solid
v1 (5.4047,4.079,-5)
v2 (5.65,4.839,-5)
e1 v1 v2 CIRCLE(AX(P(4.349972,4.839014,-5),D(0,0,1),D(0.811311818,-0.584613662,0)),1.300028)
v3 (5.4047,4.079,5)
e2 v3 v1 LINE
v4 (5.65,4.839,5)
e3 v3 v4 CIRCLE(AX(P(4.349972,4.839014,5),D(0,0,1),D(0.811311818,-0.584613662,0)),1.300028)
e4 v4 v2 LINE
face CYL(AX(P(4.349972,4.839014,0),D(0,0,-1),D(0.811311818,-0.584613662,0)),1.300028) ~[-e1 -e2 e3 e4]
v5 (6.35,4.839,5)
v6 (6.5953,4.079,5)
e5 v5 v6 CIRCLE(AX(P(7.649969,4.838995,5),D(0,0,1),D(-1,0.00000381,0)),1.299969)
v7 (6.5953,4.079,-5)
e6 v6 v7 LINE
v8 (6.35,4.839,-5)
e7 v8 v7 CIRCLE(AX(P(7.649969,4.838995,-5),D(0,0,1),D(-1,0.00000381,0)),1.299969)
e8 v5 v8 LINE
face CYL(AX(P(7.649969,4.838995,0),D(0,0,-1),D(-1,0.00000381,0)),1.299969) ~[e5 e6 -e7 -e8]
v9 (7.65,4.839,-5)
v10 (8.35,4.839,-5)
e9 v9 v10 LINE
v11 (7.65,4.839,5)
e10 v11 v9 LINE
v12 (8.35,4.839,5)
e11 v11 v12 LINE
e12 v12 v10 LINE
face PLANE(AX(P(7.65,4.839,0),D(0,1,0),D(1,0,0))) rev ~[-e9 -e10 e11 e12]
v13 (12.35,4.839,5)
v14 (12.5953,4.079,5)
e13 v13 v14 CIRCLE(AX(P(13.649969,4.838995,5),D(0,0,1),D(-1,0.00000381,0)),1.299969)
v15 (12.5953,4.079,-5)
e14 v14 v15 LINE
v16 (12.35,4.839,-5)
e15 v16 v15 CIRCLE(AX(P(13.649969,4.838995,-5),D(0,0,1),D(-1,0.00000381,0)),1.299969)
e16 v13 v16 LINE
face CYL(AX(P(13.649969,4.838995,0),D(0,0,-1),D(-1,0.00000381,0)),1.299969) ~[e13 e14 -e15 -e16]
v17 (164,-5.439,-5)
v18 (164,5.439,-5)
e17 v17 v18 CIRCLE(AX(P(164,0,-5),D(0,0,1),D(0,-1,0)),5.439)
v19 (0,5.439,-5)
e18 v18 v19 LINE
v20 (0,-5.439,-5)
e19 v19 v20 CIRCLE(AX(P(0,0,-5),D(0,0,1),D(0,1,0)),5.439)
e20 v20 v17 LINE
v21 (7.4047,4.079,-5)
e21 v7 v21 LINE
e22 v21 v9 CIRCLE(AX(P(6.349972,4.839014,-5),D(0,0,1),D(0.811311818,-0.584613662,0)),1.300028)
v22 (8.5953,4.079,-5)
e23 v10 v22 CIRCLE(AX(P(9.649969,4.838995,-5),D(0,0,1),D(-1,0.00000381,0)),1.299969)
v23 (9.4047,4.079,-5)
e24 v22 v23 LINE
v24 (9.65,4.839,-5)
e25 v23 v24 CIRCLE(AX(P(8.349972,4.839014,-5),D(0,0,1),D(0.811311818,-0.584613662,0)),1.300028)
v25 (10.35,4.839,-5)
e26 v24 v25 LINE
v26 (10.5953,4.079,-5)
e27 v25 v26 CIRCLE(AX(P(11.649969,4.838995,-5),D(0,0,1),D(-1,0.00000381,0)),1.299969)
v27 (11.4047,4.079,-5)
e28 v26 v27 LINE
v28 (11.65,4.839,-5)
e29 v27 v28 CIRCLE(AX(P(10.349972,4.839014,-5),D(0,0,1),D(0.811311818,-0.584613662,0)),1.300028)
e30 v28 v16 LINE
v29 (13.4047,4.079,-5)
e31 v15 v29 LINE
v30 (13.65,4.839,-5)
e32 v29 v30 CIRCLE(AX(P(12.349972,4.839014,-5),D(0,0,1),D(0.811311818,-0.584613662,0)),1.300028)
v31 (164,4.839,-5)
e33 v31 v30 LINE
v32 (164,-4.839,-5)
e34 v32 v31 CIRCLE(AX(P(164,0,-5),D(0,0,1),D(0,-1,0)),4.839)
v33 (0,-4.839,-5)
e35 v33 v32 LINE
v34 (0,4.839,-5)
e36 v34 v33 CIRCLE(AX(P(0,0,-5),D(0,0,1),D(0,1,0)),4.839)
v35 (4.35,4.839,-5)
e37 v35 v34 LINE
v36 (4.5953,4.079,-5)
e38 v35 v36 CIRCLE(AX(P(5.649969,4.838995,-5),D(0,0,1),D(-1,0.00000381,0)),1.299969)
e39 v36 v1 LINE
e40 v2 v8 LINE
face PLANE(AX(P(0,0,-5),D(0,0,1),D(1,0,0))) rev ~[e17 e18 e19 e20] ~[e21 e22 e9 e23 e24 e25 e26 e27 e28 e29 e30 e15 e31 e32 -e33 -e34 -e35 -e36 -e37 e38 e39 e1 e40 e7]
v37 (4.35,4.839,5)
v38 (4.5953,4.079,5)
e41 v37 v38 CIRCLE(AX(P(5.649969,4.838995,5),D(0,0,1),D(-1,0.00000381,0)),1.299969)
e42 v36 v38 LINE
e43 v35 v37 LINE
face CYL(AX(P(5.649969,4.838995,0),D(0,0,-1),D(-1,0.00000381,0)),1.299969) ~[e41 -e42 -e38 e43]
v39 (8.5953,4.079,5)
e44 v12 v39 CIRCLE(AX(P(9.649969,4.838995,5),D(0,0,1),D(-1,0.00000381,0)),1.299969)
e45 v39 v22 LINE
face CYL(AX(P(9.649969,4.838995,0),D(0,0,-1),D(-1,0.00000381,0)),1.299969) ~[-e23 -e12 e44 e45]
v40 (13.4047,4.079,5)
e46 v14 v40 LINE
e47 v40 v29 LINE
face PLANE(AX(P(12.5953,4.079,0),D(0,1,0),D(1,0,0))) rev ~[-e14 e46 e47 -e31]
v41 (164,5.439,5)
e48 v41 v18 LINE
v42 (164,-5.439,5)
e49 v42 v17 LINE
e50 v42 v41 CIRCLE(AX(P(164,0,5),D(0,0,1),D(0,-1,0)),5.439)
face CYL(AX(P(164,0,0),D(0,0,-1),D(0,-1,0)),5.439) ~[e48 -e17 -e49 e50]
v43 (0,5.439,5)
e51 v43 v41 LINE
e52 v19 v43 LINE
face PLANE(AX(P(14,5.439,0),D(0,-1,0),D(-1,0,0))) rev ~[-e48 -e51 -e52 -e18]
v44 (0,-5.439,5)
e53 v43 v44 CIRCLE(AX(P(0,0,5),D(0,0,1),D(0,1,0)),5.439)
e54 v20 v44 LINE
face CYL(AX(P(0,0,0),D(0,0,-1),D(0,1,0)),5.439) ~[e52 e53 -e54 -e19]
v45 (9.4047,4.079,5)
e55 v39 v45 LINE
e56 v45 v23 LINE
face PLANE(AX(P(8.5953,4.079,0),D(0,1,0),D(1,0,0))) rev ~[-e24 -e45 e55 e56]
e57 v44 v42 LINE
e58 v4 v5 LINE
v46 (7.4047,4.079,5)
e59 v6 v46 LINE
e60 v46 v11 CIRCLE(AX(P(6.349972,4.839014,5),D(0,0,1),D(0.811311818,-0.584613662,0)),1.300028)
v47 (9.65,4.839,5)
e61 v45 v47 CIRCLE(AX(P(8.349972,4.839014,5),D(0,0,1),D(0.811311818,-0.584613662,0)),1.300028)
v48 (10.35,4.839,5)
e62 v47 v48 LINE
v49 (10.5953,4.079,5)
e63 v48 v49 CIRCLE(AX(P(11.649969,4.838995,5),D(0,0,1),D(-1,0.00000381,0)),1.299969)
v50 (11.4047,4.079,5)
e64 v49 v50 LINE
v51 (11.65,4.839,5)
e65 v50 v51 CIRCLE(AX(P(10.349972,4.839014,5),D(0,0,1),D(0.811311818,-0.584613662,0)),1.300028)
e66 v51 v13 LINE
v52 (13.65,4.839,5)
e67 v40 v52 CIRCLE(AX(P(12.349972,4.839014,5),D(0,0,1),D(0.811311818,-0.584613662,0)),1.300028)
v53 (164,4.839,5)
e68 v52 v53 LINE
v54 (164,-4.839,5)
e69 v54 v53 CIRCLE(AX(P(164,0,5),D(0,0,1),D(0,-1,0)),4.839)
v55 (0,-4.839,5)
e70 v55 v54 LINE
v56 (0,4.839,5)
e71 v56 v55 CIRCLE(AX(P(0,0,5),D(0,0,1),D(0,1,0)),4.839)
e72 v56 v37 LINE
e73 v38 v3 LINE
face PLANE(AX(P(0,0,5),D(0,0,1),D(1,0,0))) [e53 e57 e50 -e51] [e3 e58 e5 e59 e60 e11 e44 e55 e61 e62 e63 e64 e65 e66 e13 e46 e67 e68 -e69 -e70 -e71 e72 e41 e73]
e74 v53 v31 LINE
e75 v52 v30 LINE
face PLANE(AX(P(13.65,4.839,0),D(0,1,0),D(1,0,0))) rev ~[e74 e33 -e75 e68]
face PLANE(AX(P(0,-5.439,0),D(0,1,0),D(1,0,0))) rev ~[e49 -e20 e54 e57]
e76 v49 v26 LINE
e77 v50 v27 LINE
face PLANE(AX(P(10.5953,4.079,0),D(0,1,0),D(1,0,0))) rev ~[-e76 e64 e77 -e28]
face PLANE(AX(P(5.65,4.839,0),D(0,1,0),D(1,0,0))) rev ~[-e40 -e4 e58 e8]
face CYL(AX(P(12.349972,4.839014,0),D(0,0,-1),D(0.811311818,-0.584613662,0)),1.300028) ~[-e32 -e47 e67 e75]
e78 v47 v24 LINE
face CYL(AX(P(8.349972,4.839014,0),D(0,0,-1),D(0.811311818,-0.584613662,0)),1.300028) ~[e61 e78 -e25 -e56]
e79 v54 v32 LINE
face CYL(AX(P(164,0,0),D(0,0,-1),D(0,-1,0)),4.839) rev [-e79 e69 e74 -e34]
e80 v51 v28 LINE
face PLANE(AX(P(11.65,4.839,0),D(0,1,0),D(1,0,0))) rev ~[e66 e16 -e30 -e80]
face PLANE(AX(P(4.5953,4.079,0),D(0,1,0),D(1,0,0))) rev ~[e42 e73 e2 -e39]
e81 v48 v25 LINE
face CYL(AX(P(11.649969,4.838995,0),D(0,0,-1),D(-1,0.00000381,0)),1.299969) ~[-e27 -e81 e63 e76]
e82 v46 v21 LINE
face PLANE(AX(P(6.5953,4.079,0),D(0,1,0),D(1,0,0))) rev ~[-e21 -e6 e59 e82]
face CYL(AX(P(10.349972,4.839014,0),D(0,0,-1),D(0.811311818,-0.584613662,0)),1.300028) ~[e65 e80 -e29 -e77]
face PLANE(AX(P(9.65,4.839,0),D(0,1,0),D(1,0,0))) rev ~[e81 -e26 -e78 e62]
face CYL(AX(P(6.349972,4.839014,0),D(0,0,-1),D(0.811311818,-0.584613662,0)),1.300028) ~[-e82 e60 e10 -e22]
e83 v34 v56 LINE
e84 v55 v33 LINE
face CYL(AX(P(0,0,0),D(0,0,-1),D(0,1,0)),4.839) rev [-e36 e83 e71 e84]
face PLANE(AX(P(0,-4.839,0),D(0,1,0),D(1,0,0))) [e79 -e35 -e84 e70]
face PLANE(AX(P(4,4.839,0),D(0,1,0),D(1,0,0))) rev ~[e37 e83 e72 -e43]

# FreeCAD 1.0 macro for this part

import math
import FreeCAD as App
import Part
import Sketcher
Q = App.Units.Quantity

doc = App.newDocument("Part")
body = doc.addObject("PartDesign::Body", "Body")

sketch1 = body.newObject("Sketcher::SketchObject", "Sketch")
sketch1.AttachmentSupport = (doc.getObject("XY_Plane"), [""])
sketch1.MapMode = "FlatFace"
sketch1.addGeometry([
    Part.LineSegment(App.Vector(4, 5.44, 0), App.Vector(4, 4.84, 0)),
    Part.LineSegment(App.Vector(4, 4.84, 0), App.Vector(4.35, 4.84, 0)),
    Part.ArcOfCircle(Part.Circle(App.Vector(5.65, 4.84, 0), App.Vector(0, 0, 1), 1.3), math.radians(180), math.radians(216)),
    Part.LineSegment(App.Vector(4.6, 4.08, 0), App.Vector(5.4, 4.08, 0)),
    Part.ArcOfCircle(Part.Circle(App.Vector(4.35, 4.84, 0), App.Vector(0, 0, 1), 1.3), math.radians(-36), math.radians(0)),
    Part.LineSegment(App.Vector(5.65, 4.84, 0), App.Vector(6.35, 4.84, 0)),
    Part.ArcOfCircle(Part.Circle(App.Vector(7.65, 4.84, 0), App.Vector(0, 0, 1), 1.3), math.radians(180), math.radians(216)),
    Part.LineSegment(App.Vector(6.6, 4.08, 0), App.Vector(7.4, 4.08, 0)),
    Part.ArcOfCircle(Part.Circle(App.Vector(6.35, 4.84, 0), App.Vector(0, 0, 1), 1.3), math.radians(-36), math.radians(0)),
    Part.LineSegment(App.Vector(7.65, 4.84, 0), App.Vector(8.35, 4.84, 0)),
    Part.ArcOfCircle(Part.Circle(App.Vector(9.65, 4.84, 0), App.Vector(0, 0, 1), 1.3), math.radians(180), math.radians(216)),
    Part.LineSegment(App.Vector(8.6, 4.08, 0), App.Vector(9.4, 4.08, 0)),
    Part.ArcOfCircle(Part.Circle(App.Vector(8.35, 4.84, 0), App.Vector(0, 0, 1), 1.3), math.radians(-36), math.radians(0)),
    Part.LineSegment(App.Vector(9.65, 4.84, 0), App.Vector(10.35, 4.84, 0)),
    Part.ArcOfCircle(Part.Circle(App.Vector(11.65, 4.84, 0), App.Vector(0, 0, 1), 1.3), math.radians(180), math.radians(216)),
    Part.LineSegment(App.Vector(10.6, 4.08, 0), App.Vector(11.4, 4.08, 0)),
    Part.ArcOfCircle(Part.Circle(App.Vector(10.35, 4.84, 0), App.Vector(0, 0, 1), 1.3), math.radians(-36), math.radians(0)),
    Part.LineSegment(App.Vector(11.65, 4.84, 0), App.Vector(12.35, 4.84, 0)),
    Part.ArcOfCircle(Part.Circle(App.Vector(13.65, 4.84, 0), App.Vector(0, 0, 1), 1.3), math.radians(180), math.radians(216)),
    Part.LineSegment(App.Vector(12.6, 4.08, 0), App.Vector(13.4, 4.08, 0)),
    Part.ArcOfCircle(Part.Circle(App.Vector(12.35, 4.84, 0), App.Vector(0, 0, 1), 1.3), math.radians(-36), math.radians(0)),
    Part.LineSegment(App.Vector(13.65, 4.84, 0), App.Vector(14, 4.84, 0)),
    Part.LineSegment(App.Vector(14, 4.84, 0), App.Vector(14, 5.44, 0)),
    Part.LineSegment(App.Vector(14, 5.44, 0), App.Vector(4, 5.44, 0)),
], False)
sketch1.addConstraint([
    Sketcher.Constraint("Coincident", 0, 2, 1, 1),
    Sketcher.Constraint("Coincident", 1, 2, 2, 1),
    Sketcher.Constraint("Coincident", 2, 2, 3, 1),
    Sketcher.Constraint("Coincident", 3, 2, 4, 1),
    Sketcher.Constraint("Coincident", 4, 2, 5, 1),
    Sketcher.Constraint("Coincident", 5, 2, 6, 1),
    Sketcher.Constraint("Coincident", 6, 2, 7, 1),
    Sketcher.Constraint("Coincident", 7, 2, 8, 1),
    Sketcher.Constraint("Coincident", 8, 2, 9, 1),
    Sketcher.Constraint("Coincident", 9, 2, 10, 1),
    Sketcher.Constraint("Coincident", 10, 2, 11, 1),
    Sketcher.Constraint("Coincident", 11, 2, 12, 1),
    Sketcher.Constraint("Coincident", 12, 2, 13, 1),
    Sketcher.Constraint("Coincident", 13, 2, 14, 1),
    Sketcher.Constraint("Coincident", 14, 2, 15, 1),
    Sketcher.Constraint("Coincident", 15, 2, 16, 1),
    Sketcher.Constraint("Coincident", 16, 2, 17, 1),
    Sketcher.Constraint("Coincident", 17, 2, 18, 1),
    Sketcher.Constraint("Coincident", 18, 2, 19, 1),
    Sketcher.Constraint("Coincident", 19, 2, 20, 1),
    Sketcher.Constraint("Coincident", 20, 2, 21, 1),
    Sketcher.Constraint("Coincident", 21, 2, 22, 1),
    Sketcher.Constraint("Coincident", 22, 2, 23, 1),
    Sketcher.Constraint("Coincident", 23, 2, 0, 1),
    Sketcher.Constraint("Vertical", 0),
    Sketcher.Constraint("Horizontal", 1),
    Sketcher.Constraint("Horizontal", 3),
    Sketcher.Constraint("Horizontal", 5),
    Sketcher.Constraint("Horizontal", 7),
    Sketcher.Constraint("Horizontal", 9),
    Sketcher.Constraint("Horizontal", 11),
    Sketcher.Constraint("Horizontal", 13),
    Sketcher.Constraint("Horizontal", 15),
    Sketcher.Constraint("Horizontal", 17),
    Sketcher.Constraint("Horizontal", 19),
    Sketcher.Constraint("Horizontal", 21),
    Sketcher.Constraint("Vertical", 22),
    Sketcher.Constraint("Horizontal", 23),
    Sketcher.Constraint("Coincident", 1, 2, 4, 3),
    Sketcher.Constraint("Coincident", 4, 2, 2, 3),
    Sketcher.Constraint("Coincident", 5, 2, 8, 3),
    Sketcher.Constraint("Coincident", 8, 2, 6, 3),
    Sketcher.Constraint("Coincident", 9, 2, 12, 3),
    Sketcher.Constraint("Coincident", 12, 2, 10, 3),
    Sketcher.Constraint("Coincident", 13, 2, 16, 3),
    Sketcher.Constraint("Coincident", 16, 2, 14, 3),
    Sketcher.Constraint("Coincident", 17, 2, 20, 3),
    Sketcher.Constraint("Coincident", 20, 2, 18, 3),
    Sketcher.Constraint("Equal", 4, 6),
    Sketcher.Constraint("Equal", 8, 10),
    Sketcher.Constraint("Equal", 12, 14),
    Sketcher.Constraint("Equal", 16, 18),
    Sketcher.Constraint("Horizontal", 2, 3, 4, 3),
    Sketcher.Constraint("Horizontal", 4, 3, 6, 3),
    Sketcher.Constraint("Horizontal", 8, 3, 10, 3),
    Sketcher.Constraint("Horizontal", 12, 3, 14, 3),
    Sketcher.Constraint("Horizontal", 16, 3, 18, 3),
    Sketcher.Constraint("Horizontal", 3, 2, 6, 2),
    Sketcher.Constraint("Horizontal", 7, 2, 10, 2),
    Sketcher.Constraint("Horizontal", 11, 2, 14, 2),
    Sketcher.Constraint("Horizontal", 15, 2, 18, 2),
    Sketcher.Constraint("Equal", 5, 9),
    Sketcher.Constraint("Equal", 9, 13),
    Sketcher.Constraint("Equal", 13, 17),
    Sketcher.Constraint("Equal", 1, 21),
    Sketcher.Constraint("Radius", 2, Q("1.3 mm")),
    Sketcher.Constraint("DistanceX", 23, 2, 23, 1, Q("10 mm")),
    Sketcher.Constraint("DistanceX", 5, 1, 5, 2, Q("0.7 mm")),
    Sketcher.Constraint("DistanceY", 0, 2, 0, 1, Q("0.6 mm")),
    Sketcher.Constraint("DistanceX", -1, 1, 0, 2, Q("4 mm")),
    Sketcher.Constraint("DistanceY", 2, 2, 4, 3, Q("0.76 mm")),
    Sketcher.Constraint("DistanceY", -1, 1, 2, 3, Q("4.839 mm")),
])
pad1 = body.newObject("PartDesign::Pad", "Pad")
pad1.Profile = sketch1
pad1.Length = 10
pad1.Midplane = True

sketch2 = body.newObject("Sketcher::SketchObject", "Sketch001")
sketch2.AttachmentSupport = (doc.getObject("XY_Plane"), [""])
sketch2.MapMode = "FlatFace"
sketch2.addGeometry([
    Part.LineSegment(App.Vector(164, 5.4, 0), App.Vector(0, 5.4, 0)),
    Part.ArcOfCircle(Part.Circle(App.Vector(0, 0, 0), App.Vector(0, 0, 1), 5.4), math.radians(90), math.radians(270)),
    Part.LineSegment(App.Vector(0, -5.4, 0), App.Vector(164, -5.4, 0)),
    Part.ArcOfCircle(Part.Circle(App.Vector(164, 0, 0), App.Vector(0, 0, 1), 5.4), math.radians(-90), math.radians(90)),
    Part.ArcOfCircle(Part.Circle(App.Vector(0, 0, 0), App.Vector(0, 0, 1), 4.8), math.radians(90), math.radians(270)),
    Part.LineSegment(App.Vector(0, 4.8, 0), App.Vector(164, 4.8, 0)),
    Part.ArcOfCircle(Part.Circle(App.Vector(164, 0, 0), App.Vector(0, 0, 1), 4.8), math.radians(-90), math.radians(90)),
    Part.LineSegment(App.Vector(164, -4.8, 0), App.Vector(0, -4.8, 0)),
], False)
sketch2.addConstraint([
    Sketcher.Constraint("Tangent", 0, 2, 1, 1),
    Sketcher.Constraint("Tangent", 1, 2, 2, 1),
    Sketcher.Constraint("Tangent", 2, 2, 3, 1),
    Sketcher.Constraint("Tangent", 3, 2, 0, 1),
    Sketcher.Constraint("Tangent", 4, 1, 5, 1),
    Sketcher.Constraint("Tangent", 5, 2, 6, 2),
    Sketcher.Constraint("Tangent", 6, 1, 7, 1),
    Sketcher.Constraint("Tangent", 7, 2, 4, 2),
    Sketcher.Constraint("Horizontal", 0),
    Sketcher.Constraint("Horizontal", 2),
    Sketcher.Constraint("Horizontal", 5),
    Sketcher.Constraint("Horizontal", 7),
    Sketcher.Constraint("Coincident", 1, 3, -1, 1),
    Sketcher.Constraint("Coincident", 4, 3, -1, 1),
    Sketcher.Constraint("Vertical", 6, 3, 2, 2),
    Sketcher.Constraint("DistanceX", 0, 2, 0, 1, Q("164 mm")),
    Sketcher.Constraint("Radius", 1, Q("5.439 mm")),
    Sketcher.Constraint("Radius", 4, Q("4.839 mm")),
])
pad2 = body.newObject("PartDesign::Pad", "Pad001")
pad2.Profile = sketch2
pad2.Length = 10
pad2.Midplane = True

doc.recompute()
